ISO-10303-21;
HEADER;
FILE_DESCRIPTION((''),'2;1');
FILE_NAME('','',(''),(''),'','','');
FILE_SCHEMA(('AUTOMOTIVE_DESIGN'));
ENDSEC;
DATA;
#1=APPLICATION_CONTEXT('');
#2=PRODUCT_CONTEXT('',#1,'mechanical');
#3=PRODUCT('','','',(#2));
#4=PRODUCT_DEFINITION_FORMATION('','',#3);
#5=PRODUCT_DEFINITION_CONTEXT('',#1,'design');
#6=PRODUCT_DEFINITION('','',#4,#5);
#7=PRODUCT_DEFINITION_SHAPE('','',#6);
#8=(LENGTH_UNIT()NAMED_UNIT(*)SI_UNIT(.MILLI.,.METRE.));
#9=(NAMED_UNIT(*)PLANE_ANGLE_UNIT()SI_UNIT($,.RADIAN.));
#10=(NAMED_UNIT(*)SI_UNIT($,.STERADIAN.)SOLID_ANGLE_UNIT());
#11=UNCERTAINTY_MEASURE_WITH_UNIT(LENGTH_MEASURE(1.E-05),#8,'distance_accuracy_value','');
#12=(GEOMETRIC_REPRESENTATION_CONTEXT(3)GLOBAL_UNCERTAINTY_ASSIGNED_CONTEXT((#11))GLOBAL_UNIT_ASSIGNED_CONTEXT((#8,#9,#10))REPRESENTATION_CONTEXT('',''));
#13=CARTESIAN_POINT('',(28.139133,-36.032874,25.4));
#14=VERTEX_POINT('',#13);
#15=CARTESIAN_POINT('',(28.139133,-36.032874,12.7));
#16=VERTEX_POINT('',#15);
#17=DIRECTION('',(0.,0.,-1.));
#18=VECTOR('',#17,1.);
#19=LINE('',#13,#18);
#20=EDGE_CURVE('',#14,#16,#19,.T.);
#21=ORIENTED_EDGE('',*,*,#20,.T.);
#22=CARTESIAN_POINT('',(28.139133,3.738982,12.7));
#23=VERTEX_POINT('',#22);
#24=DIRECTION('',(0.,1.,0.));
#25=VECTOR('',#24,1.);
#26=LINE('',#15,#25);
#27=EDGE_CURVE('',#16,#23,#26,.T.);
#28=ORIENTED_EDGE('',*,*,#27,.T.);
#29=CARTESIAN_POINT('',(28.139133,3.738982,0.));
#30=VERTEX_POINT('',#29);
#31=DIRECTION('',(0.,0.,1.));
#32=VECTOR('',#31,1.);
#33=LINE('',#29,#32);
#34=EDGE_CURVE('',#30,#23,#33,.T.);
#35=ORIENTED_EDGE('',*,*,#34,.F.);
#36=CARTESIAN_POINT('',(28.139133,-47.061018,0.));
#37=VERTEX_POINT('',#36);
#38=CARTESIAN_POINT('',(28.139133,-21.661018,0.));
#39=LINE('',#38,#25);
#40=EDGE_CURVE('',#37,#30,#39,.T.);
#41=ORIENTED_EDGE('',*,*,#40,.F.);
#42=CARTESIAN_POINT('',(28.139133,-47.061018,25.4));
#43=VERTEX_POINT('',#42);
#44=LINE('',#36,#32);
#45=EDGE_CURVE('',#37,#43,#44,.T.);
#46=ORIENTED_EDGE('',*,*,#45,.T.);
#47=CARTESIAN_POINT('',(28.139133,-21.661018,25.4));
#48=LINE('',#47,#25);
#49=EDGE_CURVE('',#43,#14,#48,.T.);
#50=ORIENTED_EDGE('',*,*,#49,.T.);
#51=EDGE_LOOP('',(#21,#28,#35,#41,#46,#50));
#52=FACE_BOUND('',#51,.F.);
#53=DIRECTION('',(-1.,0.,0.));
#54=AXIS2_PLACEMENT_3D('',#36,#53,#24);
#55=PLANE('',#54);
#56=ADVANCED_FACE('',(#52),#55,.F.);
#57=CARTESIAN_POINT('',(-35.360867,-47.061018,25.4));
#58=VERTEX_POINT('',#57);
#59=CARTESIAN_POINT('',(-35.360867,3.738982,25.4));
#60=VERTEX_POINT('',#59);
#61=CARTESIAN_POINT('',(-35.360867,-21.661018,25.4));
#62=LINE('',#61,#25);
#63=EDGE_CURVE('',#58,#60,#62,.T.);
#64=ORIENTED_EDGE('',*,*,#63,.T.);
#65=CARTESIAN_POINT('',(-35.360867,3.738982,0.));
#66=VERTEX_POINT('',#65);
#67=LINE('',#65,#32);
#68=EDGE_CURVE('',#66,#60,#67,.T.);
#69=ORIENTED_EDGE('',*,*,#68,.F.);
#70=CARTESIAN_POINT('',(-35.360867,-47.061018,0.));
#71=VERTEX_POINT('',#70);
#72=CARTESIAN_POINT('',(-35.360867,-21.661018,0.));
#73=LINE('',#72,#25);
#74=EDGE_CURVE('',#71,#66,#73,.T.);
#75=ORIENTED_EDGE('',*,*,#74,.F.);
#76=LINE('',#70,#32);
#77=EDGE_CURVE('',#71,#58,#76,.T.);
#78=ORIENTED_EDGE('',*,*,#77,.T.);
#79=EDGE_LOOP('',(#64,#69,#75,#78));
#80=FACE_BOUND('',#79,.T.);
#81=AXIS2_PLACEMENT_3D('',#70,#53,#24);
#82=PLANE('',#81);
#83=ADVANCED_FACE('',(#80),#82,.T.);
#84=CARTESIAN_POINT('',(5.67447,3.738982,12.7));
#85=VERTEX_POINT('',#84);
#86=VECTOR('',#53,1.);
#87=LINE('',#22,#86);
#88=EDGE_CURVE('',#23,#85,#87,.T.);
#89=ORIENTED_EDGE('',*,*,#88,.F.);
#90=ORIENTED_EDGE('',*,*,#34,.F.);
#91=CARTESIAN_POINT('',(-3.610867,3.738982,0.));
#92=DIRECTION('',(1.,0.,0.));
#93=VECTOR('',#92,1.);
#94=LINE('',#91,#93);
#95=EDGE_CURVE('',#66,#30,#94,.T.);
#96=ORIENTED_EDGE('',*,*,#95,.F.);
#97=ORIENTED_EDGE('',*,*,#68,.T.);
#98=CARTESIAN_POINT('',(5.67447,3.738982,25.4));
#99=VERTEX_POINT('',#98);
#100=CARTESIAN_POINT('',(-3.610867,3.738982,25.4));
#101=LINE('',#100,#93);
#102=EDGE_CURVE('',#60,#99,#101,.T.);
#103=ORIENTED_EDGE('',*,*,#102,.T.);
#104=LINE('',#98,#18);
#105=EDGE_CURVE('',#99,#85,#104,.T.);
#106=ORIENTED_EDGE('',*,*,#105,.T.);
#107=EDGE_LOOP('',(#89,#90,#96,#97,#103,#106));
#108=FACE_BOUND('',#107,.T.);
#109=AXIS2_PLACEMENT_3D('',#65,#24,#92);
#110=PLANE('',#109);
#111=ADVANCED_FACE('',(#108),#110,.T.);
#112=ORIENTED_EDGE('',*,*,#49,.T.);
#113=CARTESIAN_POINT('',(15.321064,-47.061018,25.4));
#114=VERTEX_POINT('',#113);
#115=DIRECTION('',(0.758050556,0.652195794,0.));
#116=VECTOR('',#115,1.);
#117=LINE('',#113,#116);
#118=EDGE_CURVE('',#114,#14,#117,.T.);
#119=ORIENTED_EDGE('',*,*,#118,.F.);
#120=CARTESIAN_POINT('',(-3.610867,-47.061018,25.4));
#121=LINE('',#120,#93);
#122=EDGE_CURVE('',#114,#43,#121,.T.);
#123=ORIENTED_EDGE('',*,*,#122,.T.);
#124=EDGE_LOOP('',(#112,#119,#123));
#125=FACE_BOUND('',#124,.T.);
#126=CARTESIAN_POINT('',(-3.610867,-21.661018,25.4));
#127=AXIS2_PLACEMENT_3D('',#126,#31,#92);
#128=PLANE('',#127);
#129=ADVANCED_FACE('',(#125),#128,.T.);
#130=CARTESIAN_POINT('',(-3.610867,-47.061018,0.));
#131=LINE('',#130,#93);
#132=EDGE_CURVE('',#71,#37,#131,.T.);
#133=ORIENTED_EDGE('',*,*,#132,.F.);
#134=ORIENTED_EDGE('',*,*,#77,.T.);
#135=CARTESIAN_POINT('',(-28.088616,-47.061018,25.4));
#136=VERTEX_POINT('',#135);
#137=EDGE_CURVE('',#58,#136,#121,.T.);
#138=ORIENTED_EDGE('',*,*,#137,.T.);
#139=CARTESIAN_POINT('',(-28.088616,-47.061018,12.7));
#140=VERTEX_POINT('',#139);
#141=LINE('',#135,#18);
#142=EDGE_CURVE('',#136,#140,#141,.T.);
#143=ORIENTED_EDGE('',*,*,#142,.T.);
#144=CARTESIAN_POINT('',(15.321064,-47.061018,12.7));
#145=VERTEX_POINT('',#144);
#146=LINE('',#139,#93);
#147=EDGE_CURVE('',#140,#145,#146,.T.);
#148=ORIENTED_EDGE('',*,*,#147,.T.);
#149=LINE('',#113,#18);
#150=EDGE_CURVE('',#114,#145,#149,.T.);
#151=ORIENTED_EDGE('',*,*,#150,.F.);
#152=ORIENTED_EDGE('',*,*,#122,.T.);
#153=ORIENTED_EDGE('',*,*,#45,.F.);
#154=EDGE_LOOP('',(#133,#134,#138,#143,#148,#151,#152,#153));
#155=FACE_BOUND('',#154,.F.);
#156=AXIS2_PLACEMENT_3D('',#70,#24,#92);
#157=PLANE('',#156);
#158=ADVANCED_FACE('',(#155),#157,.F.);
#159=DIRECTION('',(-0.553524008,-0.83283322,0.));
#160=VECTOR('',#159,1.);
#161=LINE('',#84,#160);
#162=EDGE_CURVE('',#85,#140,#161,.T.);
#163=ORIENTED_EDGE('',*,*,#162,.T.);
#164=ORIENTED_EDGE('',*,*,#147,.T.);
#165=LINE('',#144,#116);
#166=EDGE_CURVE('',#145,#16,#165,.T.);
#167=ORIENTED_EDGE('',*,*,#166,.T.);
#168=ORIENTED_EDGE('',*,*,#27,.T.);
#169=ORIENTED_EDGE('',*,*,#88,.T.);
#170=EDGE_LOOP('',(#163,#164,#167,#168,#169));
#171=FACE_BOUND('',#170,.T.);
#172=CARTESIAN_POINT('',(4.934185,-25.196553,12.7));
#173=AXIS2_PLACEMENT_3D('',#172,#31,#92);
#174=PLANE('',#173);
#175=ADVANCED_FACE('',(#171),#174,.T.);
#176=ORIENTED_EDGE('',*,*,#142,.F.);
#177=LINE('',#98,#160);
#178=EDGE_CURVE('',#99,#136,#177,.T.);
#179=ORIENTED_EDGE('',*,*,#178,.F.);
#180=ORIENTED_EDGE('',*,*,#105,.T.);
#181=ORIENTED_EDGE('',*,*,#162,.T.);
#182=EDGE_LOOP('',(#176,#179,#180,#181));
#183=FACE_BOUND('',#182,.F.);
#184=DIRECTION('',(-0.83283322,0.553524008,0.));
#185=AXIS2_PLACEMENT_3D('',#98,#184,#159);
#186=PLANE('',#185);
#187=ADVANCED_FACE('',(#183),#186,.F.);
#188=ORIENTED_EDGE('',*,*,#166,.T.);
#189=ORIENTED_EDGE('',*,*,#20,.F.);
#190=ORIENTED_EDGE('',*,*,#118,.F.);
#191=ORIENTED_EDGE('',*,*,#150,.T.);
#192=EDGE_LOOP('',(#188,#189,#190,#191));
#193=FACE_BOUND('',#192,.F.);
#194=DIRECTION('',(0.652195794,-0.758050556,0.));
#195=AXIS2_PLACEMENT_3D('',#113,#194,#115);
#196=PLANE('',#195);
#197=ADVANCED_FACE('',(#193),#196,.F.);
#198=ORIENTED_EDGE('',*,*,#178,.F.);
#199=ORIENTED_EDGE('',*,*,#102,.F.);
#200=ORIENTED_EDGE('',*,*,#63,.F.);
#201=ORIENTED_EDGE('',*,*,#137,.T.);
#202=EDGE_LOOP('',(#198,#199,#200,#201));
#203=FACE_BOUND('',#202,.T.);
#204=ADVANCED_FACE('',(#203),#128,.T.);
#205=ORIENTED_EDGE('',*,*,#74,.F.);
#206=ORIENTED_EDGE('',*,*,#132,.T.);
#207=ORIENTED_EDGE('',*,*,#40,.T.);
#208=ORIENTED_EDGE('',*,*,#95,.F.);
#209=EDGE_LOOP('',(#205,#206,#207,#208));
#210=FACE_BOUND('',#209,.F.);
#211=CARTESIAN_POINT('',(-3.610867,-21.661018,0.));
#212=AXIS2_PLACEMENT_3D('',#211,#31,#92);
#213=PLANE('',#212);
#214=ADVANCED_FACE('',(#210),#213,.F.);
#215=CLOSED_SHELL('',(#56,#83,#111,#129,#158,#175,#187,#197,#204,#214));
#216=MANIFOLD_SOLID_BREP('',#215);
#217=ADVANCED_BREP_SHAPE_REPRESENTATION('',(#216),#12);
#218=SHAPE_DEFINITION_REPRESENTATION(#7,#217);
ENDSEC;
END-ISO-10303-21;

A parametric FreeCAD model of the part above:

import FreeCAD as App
import Part
import Sketcher
Q = App.Units.Quantity

doc = App.newDocument("Part")
body = doc.addObject("PartDesign::Body", "Body")

# Sketch on XY plane
sketch1 = body.newObject("Sketcher::SketchObject", "Sketch")
sketch1.AttachmentSupport = (doc.getObject("XY_Plane"), [""])
sketch1.MapMode = "FlatFace"
sketch1.addGeometry([
    Part.LineSegment(App.Vector(-35, 4, 0), App.Vector(-35, -47, 0)),
    Part.LineSegment(App.Vector(-35, -47, 0), App.Vector(28, -47, 0)),
    Part.LineSegment(App.Vector(28, -47, 0), App.Vector(28, 4, 0)),
    Part.LineSegment(App.Vector(28, 4, 0), App.Vector(-35, 4, 0)),
], False)
sketch1.addConstraint([
    Sketcher.Constraint("Coincident", 0, 2, 1, 1),
    Sketcher.Constraint("Coincident", 1, 2, 2, 1),
    Sketcher.Constraint("Coincident", 2, 2, 3, 1),
    Sketcher.Constraint("Coincident", 3, 2, 0, 1),
    Sketcher.Constraint("Vertical", 0),
    Sketcher.Constraint("Horizontal", 1),
    Sketcher.Constraint("Vertical", 2),
    Sketcher.Constraint("Horizontal", 3),
    Sketcher.Constraint("DistanceY", 0, 2, 0, 1, Q("2 in")),
    Sketcher.Constraint("DistanceX", 1, 1, 1, 2, Q("2.5 in")),
    Sketcher.Constraint("DistanceY", -1, 1, 2, 2, 3.738982),
    Sketcher.Constraint("DistanceX", 0, 2, -1, 1, 35.360867),
])
pad1 = body.newObject("PartDesign::Pad", "Pad")
pad1.Profile = sketch1
pad1.Length = Q("1 in")

# Sketch on XY plane
sketch2 = body.newObject("Sketcher::SketchObject", "Sketch001")
sketch2.AttachmentSupport = (doc.getObject("XY_Plane"), [""])
sketch2.MapMode = "FlatFace"
sketch2.AttachmentOffset = App.Placement(App.Vector(0, 0, 1 * 25.4), App.Rotation())
sketch2.addGeometry([
    Part.LineSegment(App.Vector(28, 4, 0), App.Vector(6, 4, 0)),  # 0
    Part.LineSegment(App.Vector(6, 4, 0), App.Vector(-28, -47, 0)),  # 1
    Part.LineSegment(App.Vector(-28, -47, 0), App.Vector(15, -47, 0)),  # 2
    Part.LineSegment(App.Vector(15, -47, 0), App.Vector(28, -36, 0)),  # 3
    Part.LineSegment(App.Vector(28, -36, 0), App.Vector(28, 4, 0)),  # 4
], False)
sketch2.addConstraint([
    Sketcher.Constraint("Coincident", 0, 2, 1, 1),
    Sketcher.Constraint("Coincident", 1, 2, 2, 1),
    Sketcher.Constraint("Coincident", 2, 2, 3, 1),
    Sketcher.Constraint("Coincident", 3, 2, 4, 1),
    Sketcher.Constraint("Coincident", 4, 2, 0, 1),
    Sketcher.Constraint("Horizontal", 0),
    Sketcher.Constraint("Horizontal", 2),
    Sketcher.Constraint("Vertical", 4),
    Sketcher.Constraint("DistanceY", 1, 2, 0, 2, Q("2 in")),
    Sketcher.Constraint("DistanceX", 2, 1, 2, 2, 43.40968),
    Sketcher.Constraint("DistanceX", 0, 2, 0, 1, 22.464663),
    Sketcher.Constraint("DistanceY", 4, 1, 4, 2, 39.771856),
    Sketcher.Constraint("DistanceX", -1, 1, 0, 2, 5.67447),
    Sketcher.Constraint("DistanceY", -1, 1, 0, 2, 3.738982),
    Sketcher.Constraint("DistanceX", 2, 2, 3, 2, 12.818069),
])
pocket1 = body.newObject("PartDesign::Pocket", "Pocket")
pocket1.Profile = sketch2
pocket1.Length = Q("0.5 in")

doc.recompute()
